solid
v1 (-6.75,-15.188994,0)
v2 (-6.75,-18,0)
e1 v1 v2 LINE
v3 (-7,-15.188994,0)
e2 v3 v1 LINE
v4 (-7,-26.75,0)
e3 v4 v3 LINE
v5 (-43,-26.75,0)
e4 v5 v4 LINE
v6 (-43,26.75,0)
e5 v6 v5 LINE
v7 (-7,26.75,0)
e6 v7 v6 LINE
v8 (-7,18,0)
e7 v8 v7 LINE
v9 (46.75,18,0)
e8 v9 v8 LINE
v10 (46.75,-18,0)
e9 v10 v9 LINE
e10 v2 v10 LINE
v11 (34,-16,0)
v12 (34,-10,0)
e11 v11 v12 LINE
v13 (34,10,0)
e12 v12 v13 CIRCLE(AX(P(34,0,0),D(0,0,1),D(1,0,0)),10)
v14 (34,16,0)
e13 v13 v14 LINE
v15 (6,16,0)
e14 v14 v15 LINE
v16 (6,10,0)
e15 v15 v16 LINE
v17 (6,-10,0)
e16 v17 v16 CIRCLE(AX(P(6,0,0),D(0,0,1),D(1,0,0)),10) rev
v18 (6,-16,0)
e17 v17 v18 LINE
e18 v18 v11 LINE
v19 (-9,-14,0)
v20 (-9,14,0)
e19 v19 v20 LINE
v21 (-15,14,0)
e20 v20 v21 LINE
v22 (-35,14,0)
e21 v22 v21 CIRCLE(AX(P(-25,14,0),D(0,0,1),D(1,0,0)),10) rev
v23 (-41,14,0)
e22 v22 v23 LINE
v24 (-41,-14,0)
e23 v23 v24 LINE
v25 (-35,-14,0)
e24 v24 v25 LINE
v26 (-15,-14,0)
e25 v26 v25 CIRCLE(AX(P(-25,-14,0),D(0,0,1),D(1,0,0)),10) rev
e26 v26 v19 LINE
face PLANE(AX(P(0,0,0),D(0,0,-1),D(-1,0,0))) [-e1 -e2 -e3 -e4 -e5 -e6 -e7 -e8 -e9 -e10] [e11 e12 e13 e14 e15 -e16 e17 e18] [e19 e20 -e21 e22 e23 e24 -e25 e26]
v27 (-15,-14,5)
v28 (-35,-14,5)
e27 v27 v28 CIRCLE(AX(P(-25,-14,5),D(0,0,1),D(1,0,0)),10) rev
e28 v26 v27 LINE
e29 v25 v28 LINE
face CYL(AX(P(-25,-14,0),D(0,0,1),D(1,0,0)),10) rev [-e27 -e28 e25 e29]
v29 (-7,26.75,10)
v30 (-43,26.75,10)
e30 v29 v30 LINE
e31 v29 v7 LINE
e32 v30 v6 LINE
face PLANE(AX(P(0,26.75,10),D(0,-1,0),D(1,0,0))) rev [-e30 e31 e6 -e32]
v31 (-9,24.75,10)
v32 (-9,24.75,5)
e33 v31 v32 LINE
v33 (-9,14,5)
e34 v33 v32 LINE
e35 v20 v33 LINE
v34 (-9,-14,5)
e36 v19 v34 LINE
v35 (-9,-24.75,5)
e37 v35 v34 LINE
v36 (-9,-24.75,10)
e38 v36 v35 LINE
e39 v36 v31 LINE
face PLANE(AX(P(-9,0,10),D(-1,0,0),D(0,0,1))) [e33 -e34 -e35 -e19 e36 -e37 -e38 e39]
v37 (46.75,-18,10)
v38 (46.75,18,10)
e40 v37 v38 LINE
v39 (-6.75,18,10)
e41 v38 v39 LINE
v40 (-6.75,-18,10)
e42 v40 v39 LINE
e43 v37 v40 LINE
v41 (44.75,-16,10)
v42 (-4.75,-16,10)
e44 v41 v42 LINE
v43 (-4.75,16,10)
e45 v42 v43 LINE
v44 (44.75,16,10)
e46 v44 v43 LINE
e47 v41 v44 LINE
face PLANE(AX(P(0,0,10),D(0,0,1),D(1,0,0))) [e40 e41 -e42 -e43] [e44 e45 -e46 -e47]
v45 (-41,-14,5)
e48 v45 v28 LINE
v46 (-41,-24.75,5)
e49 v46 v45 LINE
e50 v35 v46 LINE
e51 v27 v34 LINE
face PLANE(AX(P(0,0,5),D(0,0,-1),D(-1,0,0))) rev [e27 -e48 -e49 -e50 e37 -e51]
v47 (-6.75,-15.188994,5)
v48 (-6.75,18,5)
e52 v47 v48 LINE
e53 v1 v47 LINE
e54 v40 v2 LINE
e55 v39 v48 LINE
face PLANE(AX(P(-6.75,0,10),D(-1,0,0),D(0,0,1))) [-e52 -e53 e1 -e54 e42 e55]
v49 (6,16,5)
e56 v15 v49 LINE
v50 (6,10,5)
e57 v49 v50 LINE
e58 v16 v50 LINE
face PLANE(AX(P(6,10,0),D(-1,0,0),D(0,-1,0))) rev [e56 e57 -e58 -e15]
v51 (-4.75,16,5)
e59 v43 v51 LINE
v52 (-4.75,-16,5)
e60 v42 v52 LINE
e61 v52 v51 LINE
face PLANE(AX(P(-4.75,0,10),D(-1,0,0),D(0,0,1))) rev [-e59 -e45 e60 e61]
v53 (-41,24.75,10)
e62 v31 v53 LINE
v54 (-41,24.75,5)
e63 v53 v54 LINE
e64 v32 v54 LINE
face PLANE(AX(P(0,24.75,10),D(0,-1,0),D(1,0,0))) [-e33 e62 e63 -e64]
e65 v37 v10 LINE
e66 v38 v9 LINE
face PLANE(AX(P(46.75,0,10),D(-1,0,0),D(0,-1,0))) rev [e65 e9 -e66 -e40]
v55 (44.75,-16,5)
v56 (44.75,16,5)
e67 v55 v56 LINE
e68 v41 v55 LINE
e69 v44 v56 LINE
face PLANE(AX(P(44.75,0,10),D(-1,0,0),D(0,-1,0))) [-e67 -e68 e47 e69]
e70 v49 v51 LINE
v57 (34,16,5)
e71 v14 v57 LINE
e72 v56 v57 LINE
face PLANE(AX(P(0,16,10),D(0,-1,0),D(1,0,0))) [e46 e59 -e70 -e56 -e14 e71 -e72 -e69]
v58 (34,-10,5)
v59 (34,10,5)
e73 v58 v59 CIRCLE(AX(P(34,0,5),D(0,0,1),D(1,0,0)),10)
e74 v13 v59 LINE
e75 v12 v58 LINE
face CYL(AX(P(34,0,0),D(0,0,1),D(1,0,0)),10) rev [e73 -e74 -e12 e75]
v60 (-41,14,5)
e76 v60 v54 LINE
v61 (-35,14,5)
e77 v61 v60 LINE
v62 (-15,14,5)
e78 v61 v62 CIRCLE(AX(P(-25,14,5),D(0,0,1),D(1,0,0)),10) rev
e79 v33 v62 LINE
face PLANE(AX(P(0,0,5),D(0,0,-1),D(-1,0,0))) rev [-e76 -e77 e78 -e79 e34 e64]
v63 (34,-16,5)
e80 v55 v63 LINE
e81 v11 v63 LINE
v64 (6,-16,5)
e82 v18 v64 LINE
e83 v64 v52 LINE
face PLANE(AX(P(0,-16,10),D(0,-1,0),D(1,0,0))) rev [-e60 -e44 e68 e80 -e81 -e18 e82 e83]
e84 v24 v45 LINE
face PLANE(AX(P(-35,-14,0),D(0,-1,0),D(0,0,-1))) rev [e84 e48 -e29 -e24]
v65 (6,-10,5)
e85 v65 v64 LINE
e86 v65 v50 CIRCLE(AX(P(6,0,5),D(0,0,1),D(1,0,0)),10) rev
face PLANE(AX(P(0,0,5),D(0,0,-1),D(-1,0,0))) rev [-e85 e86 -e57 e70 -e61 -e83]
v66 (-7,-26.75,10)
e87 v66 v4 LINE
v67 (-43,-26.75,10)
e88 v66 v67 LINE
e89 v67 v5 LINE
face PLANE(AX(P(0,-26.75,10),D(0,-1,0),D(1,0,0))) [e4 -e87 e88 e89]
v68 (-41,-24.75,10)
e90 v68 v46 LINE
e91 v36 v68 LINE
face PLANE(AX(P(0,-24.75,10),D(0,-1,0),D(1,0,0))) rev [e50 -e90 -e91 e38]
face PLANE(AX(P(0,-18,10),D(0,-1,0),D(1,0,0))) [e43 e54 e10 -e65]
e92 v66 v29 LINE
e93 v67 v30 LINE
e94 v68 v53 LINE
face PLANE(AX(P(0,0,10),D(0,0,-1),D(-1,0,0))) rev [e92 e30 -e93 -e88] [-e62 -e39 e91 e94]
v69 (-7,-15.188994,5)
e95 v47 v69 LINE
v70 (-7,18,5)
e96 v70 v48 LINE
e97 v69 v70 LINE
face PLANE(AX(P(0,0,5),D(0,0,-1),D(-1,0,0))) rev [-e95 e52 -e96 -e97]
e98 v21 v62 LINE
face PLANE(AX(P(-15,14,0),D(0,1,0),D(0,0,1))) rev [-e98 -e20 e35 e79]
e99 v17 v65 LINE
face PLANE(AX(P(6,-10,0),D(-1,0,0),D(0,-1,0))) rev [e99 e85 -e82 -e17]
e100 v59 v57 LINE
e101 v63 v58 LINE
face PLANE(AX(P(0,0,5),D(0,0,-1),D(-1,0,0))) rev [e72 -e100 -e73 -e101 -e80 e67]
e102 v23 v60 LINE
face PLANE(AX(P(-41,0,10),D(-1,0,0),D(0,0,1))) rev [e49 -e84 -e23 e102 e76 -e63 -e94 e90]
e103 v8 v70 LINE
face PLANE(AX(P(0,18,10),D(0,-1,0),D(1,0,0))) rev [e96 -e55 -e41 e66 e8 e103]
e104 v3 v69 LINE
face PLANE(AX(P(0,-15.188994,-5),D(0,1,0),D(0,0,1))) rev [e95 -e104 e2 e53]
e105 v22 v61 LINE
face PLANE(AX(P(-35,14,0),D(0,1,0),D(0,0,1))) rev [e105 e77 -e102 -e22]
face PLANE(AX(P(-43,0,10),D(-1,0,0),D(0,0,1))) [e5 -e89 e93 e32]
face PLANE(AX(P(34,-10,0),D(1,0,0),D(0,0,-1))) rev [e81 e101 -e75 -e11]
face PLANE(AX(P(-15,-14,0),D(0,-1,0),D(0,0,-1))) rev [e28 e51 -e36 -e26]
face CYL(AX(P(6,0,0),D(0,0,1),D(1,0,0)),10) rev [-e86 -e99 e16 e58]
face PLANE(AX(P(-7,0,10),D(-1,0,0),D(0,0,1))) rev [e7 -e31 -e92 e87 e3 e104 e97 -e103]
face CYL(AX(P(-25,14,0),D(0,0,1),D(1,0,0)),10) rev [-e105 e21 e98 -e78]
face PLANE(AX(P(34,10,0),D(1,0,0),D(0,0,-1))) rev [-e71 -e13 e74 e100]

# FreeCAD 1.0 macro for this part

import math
import FreeCAD as App
import Part
import Sketcher
from FreeCAD import Vector
Q = App.Units.Quantity


def add_polygon(sketch, points):
    """Adds a closed chain of lines whose ends are joined by coincident constraints."""
    first, n = sketch.GeometryCount, len(points)
    for a, b in zip(points, points[1:] + points[:1]):
        sketch.addGeometry(Part.LineSegment(App.Vector(*a, 0), App.Vector(*b, 0)), False)
    for i in range(n):
        sketch.addConstraint(Sketcher.Constraint("Coincident", first + i, 2, first + (i + 1) % n, 1))

doc = App.newDocument("Part")
params = doc.addObject("Spreadsheet::Sheet", "Params")
for row, (alias, value) in enumerate([
    ("sketch1_width", "100 mm"),
    ("sketch1_height", "55 mm"),
    ("pad1_length", "5 mm"),
    ("sketch2_width", "36 mm"),
    ("sketch2_width2", "32 mm"),
    ("sketch2_width3", "53.5 mm"),
    ("sketch2_width4", "49.5 mm"),
    ("pad2_length", "5 mm"),
    ("sketch3_radius", "10 mm"),
    ("sketch3_height", "28 mm"),
    ("pocket1_length", "5 mm"),
    ("sketch4_radius", "10 mm"),
    ("sketch4_width", "28 mm"),
    ("pocket2_length", "5 mm"),
    ("sketch5_width", "6 mm"),
    ("sketch5_width2", "28 mm"),
    ("pocket3_length", "5 mm"),
    ("sketch6_width", "100 mm"),
    ("sketch6_width2", "36 mm"),
    ("sketch6_height", "55 mm"),
    ("sketch6_height2", "9.5 mm"),
    ("sketch6_height3", "53.5 mm"),
    ("pocket4_length", "10 mm"),
    ("sketch7_height", "5 mm"),
    ("sketch7_width", "3.25 mm"),
    ("pocket5_length", "10 mm"),
], start=1):
    params.set(f"A{row}", alias)
    params.set(f"B{row}", "=" + value)
    params.setAlias(f"B{row}", alias)

body = doc.addObject("PartDesign::Body", "Body")

sketch1 = body.newObject("Sketcher::SketchObject", "Sketch")
sketch1.AttachmentSupport = (doc.getObject("XY_Plane"), [""])
sketch1.MapMode = "FlatFace"
add_polygon(sketch1, [(-50, 28), (-50, -28), (50, -28), (50, 28)])
sketch1.addConstraint([
    Sketcher.Constraint("Vertical", 0),
    Sketcher.Constraint("Horizontal", 1),
    Sketcher.Constraint("Vertical", 2),
    Sketcher.Constraint("Horizontal", 3),
    Sketcher.Constraint("Symmetric", 0, 2, 2, 2, -1, 1),
    Sketcher.Constraint("DistanceX", 1, 1, 1, 2, Q("100 mm")),
    Sketcher.Constraint("DistanceY", 0, 2, 0, 1, Q("55 mm")),
])
sketch1.setExpression("Constraints[9]", "Params.sketch1_width")
sketch1.setExpression("Constraints[10]", "Params.sketch1_height")
pad1 = body.newObject("PartDesign::Pad", "Pad")
pad1.Profile = sketch1
pad1.setExpression("Length", "Params.pad1_length")

sketch2 = body.newObject("Sketcher::SketchObject", "Sketch001")
sketch2.AttachmentSupport = (doc.getObject("XY_Plane"), [""])
sketch2.MapMode = "FlatFace"
sketch2.AttachmentOffset = App.Placement(Vector(0, 0, 5), App.Rotation())
add_polygon(sketch2, [(-43, 27), (-43, -27), (-7, -27), (-7, 27)])
add_polygon(sketch2, [(-9, -25), (-41, -25), (-41, 25), (-9, 25)])
add_polygon(sketch2, [(-7, 18), (-7, -18), (47, -18), (47, 18)])
add_polygon(sketch2, [(45, -16), (-5, -16), (-5, 16), (45, 16)])
sketch2.addConstraint([
    Sketcher.Constraint("Vertical", 0),
    Sketcher.Constraint("Horizontal", 1),
    Sketcher.Constraint("Vertical", 2),
    Sketcher.Constraint("Horizontal", 3),
    Sketcher.Constraint("Horizontal", 4),
    Sketcher.Constraint("Vertical", 5),
    Sketcher.Constraint("Horizontal", 6),
    Sketcher.Constraint("Vertical", 7),
    Sketcher.Constraint("Vertical", 8),
    Sketcher.Constraint("Horizontal", 9),
    Sketcher.Constraint("Vertical", 10),
    Sketcher.Constraint("Horizontal", 11),
    Sketcher.Constraint("Horizontal", 12),
    Sketcher.Constraint("Vertical", 13),
    Sketcher.Constraint("Horizontal", 14),
    Sketcher.Constraint("Vertical", 15),
    Sketcher.Constraint("Equal", 11, 0),
    Sketcher.Constraint("Equal", 14, 5),
    Sketcher.Constraint("Equal", 3, 8),
    Sketcher.Constraint("Equal", 6, 13),
    Sketcher.Constraint("DistanceX", 1, 1, 1, 2, Q("36 mm")),
    Sketcher.Constraint("DistanceX", 4, 2, 4, 1, Q("32 mm")),
    Sketcher.Constraint("DistanceX", 9, 1, 9, 2, Q("53.5 mm")),
    Sketcher.Constraint("DistanceX", 12, 2, 12, 1, Q("49.5 mm")),
    Sketcher.Constraint("DistanceX", 0, 2, -1, 1, Q("43 mm")),
    Sketcher.Constraint("DistanceX", 4, 2, -1, 1, Q("41 mm")),
    Sketcher.Constraint("DistanceY", 8, 2, -1, 1, Q("18 mm")),
    Sketcher.Constraint("DistanceY", 12, 2, -1, 1, Q("16 mm")),
    Sketcher.Constraint("DistanceY", 0, 2, 4, 2, Q("2 mm")),
    Sketcher.Constraint("DistanceX", 8, 2, 12, 2, Q("2 mm")),
    Sketcher.Constraint("DistanceY", 0, 2, -1, 1, Q("26.75 mm")),
    Sketcher.Constraint("DistanceX", 8, 2, -1, 1, Q("6.75 mm")),
])
sketch2.setExpression("Constraints[36]", "Params.sketch2_width")
sketch2.setExpression("Constraints[37]", "Params.sketch2_width2")
sketch2.setExpression("Constraints[38]", "Params.sketch2_width3")
sketch2.setExpression("Constraints[39]", "Params.sketch2_width4")
pad2 = body.newObject("PartDesign::Pad", "Pad001")
pad2.Profile = sketch2
pad2.setExpression("Length", "Params.pad2_length")

sketch3 = body.newObject("Sketcher::SketchObject", "Sketch002")
sketch3.AttachmentSupport = (doc.getObject("XY_Plane"), [""])
sketch3.MapMode = "FlatFace"
sketch3.AttachmentOffset = App.Placement(Vector(0, 0, 5), App.Rotation())
sketch3.addGeometry([
    Part.LineSegment(Vector(-15, -14, 0), Vector(-15, 14, 0)),
    Part.ArcOfCircle(Part.Circle(Vector(-25, 14, 0), Vector(0, 0, 1), 10), math.radians(0), math.radians(90)),
    Part.ArcOfCircle(Part.Circle(Vector(-25, 14, 0), Vector(0, 0, 1), 10), math.radians(90), math.radians(180)),
    Part.LineSegment(Vector(-35, 14, 0), Vector(-35, -14, 0)),
    Part.ArcOfCircle(Part.Circle(Vector(-25, -14, 0), Vector(0, 0, 1), 10), math.radians(180), math.radians(270)),
    Part.ArcOfCircle(Part.Circle(Vector(-25, -14, 0), Vector(0, 0, 1), 10), math.radians(-90), math.radians(0)),
], False)
sketch3.addConstraint([
    Sketcher.Constraint("Tangent", 0, 2, 1, 1),
    Sketcher.Constraint("Tangent", 1, 2, 2, 1),
    Sketcher.Constraint("Tangent", 2, 2, 3, 1),
    Sketcher.Constraint("Tangent", 3, 2, 4, 1),
    Sketcher.Constraint("Tangent", 4, 2, 5, 1),
    Sketcher.Constraint("Tangent", 5, 2, 0, 1),
    Sketcher.Constraint("Vertical", 0),
    Sketcher.Constraint("Vertical", 3),
    Sketcher.Constraint("Equal", 1, 2),
    Sketcher.Constraint("Equal", 2, 4),
    Sketcher.Constraint("Symmetric", 1, 2, 4, 2, -1),
    Sketcher.Constraint("Vertical", 5, 3, 1, 2),
    Sketcher.Constraint("Radius", 1, Q("10 mm")),
    Sketcher.Constraint("DistanceY", 0, 1, 0, 2, Q("28 mm")),
    Sketcher.Constraint("DistanceX", 1, 3, -1, 1, Q("25 mm")),
])
sketch3.setExpression("Constraints[12]", "Params.sketch3_radius")
sketch3.setExpression("Constraints[13]", "Params.sketch3_height")
pocket1 = body.newObject("PartDesign::Pocket", "Pocket")
pocket1.Profile = sketch3
pocket1.setExpression("Length", "Params.pocket1_length")

sketch4 = body.newObject("Sketcher::SketchObject", "Sketch003")
sketch4.AttachmentSupport = (doc.getObject("XY_Plane"), [""])
sketch4.MapMode = "FlatFace"
sketch4.AttachmentOffset = App.Placement(Vector(0, 0, 5), App.Rotation())
sketch4.addGeometry([
    Part.LineSegment(Vector(34, 10, 0), Vector(6, 10, 0)),
    Part.ArcOfCircle(Part.Circle(Vector(6, 0, 0), Vector(0, 0, 1), 10), math.radians(90), math.radians(180)),
    Part.ArcOfCircle(Part.Circle(Vector(6, 0, 0), Vector(0, 0, 1), 10), math.radians(180), math.radians(270)),
    Part.LineSegment(Vector(6, -10, 0), Vector(34, -10, 0)),
    Part.ArcOfCircle(Part.Circle(Vector(34, 0, 0), Vector(0, 0, 1), 10), math.radians(-90), math.radians(0)),
    Part.ArcOfCircle(Part.Circle(Vector(34, 0, 0), Vector(0, 0, 1), 10), math.radians(0), math.radians(90)),
], False)
sketch4.addConstraint([
    Sketcher.Constraint("Tangent", 0, 2, 1, 1),
    Sketcher.Constraint("Tangent", 1, 2, 2, 1),
    Sketcher.Constraint("Tangent", 2, 2, 3, 1),
    Sketcher.Constraint("Tangent", 3, 2, 4, 1),
    Sketcher.Constraint("Tangent", 4, 2, 5, 1),
    Sketcher.Constraint("Tangent", 5, 2, 0, 1),
    Sketcher.Constraint("Horizontal", 0),
    Sketcher.Constraint("Horizontal", 3),
    Sketcher.Constraint("Equal", 1, 2),
    Sketcher.Constraint("Equal", 2, 4),
    Sketcher.Constraint("PointOnObject", 1, 3, -1),
    Sketcher.Constraint("PointOnObject", 1, 2, -1),
    Sketcher.Constraint("PointOnObject", 4, 2, -1),
    Sketcher.Constraint("Radius", 1, Q("10 mm")),
    Sketcher.Constraint("DistanceX", 0, 2, 0, 1, Q("28 mm")),
    Sketcher.Constraint("DistanceX", -1, 1, 1, 3, Q("6 mm")),
])
sketch4.setExpression("Constraints[13]", "Params.sketch4_radius")
sketch4.setExpression("Constraints[14]", "Params.sketch4_width")
pocket2 = body.newObject("PartDesign::Pocket", "Pocket001")
pocket2.Profile = sketch4
pocket2.setExpression("Length", "Params.pocket2_length")

sketch5 = body.newObject("Sketcher::SketchObject", "Sketch004")
sketch5.AttachmentSupport = (doc.getObject("XY_Plane"), [""])
sketch5.MapMode = "FlatFace"
sketch5.AttachmentOffset = App.Placement(Vector(0, 0, 5), App.Rotation())
add_polygon(sketch5, [(-15, 14), (-15, -14), (-9, -14), (-9, 14)])
add_polygon(sketch5, [(-41, 14), (-41, -14), (-35, -14), (-35, 14)])
add_polygon(sketch5, [(6, 16), (6, 10), (34, 10), (34, 16)])
add_polygon(sketch5, [(6, -10), (6, -16), (34, -16), (34, -10)])
sketch5.addConstraint([
    Sketcher.Constraint("Vertical", 0),
    Sketcher.Constraint("Horizontal", 1),
    Sketcher.Constraint("Vertical", 2),
    Sketcher.Constraint("Horizontal", 3),
    Sketcher.Constraint("Vertical", 4),
    Sketcher.Constraint("Horizontal", 5),
    Sketcher.Constraint("Vertical", 6),
    Sketcher.Constraint("Horizontal", 7),
    Sketcher.Constraint("Vertical", 8),
    Sketcher.Constraint("Horizontal", 9),
    Sketcher.Constraint("Vertical", 10),
    Sketcher.Constraint("Horizontal", 11),
    Sketcher.Constraint("Vertical", 12),
    Sketcher.Constraint("Horizontal", 13),
    Sketcher.Constraint("Vertical", 14),
    Sketcher.Constraint("Horizontal", 15),
    Sketcher.Constraint("Symmetric", 11, 2, 12, 2, -1),
    Sketcher.Constraint("Symmetric", 9, 2, 14, 2, -1),
    Sketcher.Constraint("Horizontal", 1, 2, 4, 2),
    Sketcher.Constraint("Horizontal", 3, 2, 6, 2),
    Sketcher.Constraint("Equal", 3, 5),
    Sketcher.Constraint("Equal", 15, 0),
    Sketcher.Constraint("Equal", 7, 8),
    Sketcher.Constraint("DistanceX", 1, 1, 1, 2, Q("6 mm")),
    Sketcher.Constraint("DistanceX", 9, 1, 9, 2, Q("28 mm")),
    Sketcher.Constraint("DistanceX", 0, 2, -1, 1, Q("15 mm")),
    Sketcher.Constraint("DistanceY", 0, 2, -1, 1, Q("14 mm")),
    Sketcher.Constraint("DistanceX", 4, 2, -1, 1, Q("41 mm")),
    Sketcher.Constraint("DistanceX", -1, 1, 8, 2, Q("6 mm")),
    Sketcher.Constraint("DistanceY", -1, 1, 8, 2, Q("10 mm")),
])
sketch5.setExpression("Constraints[39]", "Params.sketch5_width")
sketch5.setExpression("Constraints[40]", "Params.sketch5_width2")
pocket3 = body.newObject("PartDesign::Pocket", "Pocket002")
pocket3.Profile = sketch5
pocket3.setExpression("Length", "Params.pocket3_length")

sketch6 = body.newObject("Sketcher::SketchObject", "Sketch005")
sketch6.AttachmentSupport = (doc.getObject("XY_Plane"), [""])
sketch6.MapMode = "FlatFace"
sketch6.AttachmentOffset = App.Placement(Vector(0, 0, 5), App.Rotation())
add_polygon(sketch6, [(-50, 27.5), (-50, -27.5), (50, -27.5), (50, -18), (-6.75, -18), (-6.75, -15.19), (-7, -15.19), (-7, -26.75), (-43, -26.75), (-43, 26.75), (-7, 26.75), (-7, 18), (46.75, 18), (46.75, -15.19), (50, -15.19), (50, 27.5)])
sketch6.addConstraint([
    Sketcher.Constraint("Vertical", 0),
    Sketcher.Constraint("Horizontal", 1),
    Sketcher.Constraint("Vertical", 2),
    Sketcher.Constraint("Horizontal", 3),
    Sketcher.Constraint("Vertical", 4),
    Sketcher.Constraint("Horizontal", 5),
    Sketcher.Constraint("Vertical", 6),
    Sketcher.Constraint("Horizontal", 7),
    Sketcher.Constraint("Vertical", 8),
    Sketcher.Constraint("Horizontal", 9),
    Sketcher.Constraint("Vertical", 10),
    Sketcher.Constraint("Horizontal", 11),
    Sketcher.Constraint("Vertical", 12),
    Sketcher.Constraint("Horizontal", 13),
    Sketcher.Constraint("Vertical", 14),
    Sketcher.Constraint("Horizontal", 15),
    Sketcher.Constraint("Symmetric", 0, 2, 14, 2, -1, 1),
    Sketcher.Constraint("Symmetric", 6, 2, 9, 2, -1),
    Sketcher.Constraint("Horizontal", 5, 2, 12, 2),
    Sketcher.Constraint("Vertical", 2, 2, 13, 2),
    Sketcher.Constraint("DistanceX", 1, 1, 1, 2, Q("100 mm")),
    Sketcher.Constraint("DistanceX", 7, 2, 7, 1, Q("36 mm")),
    Sketcher.Constraint("DistanceY", 0, 2, 0, 1, Q("55 mm")),
    Sketcher.Constraint("DistanceY", 2, 1, 2, 2, Q("9.5 mm")),
    Sketcher.Constraint("DistanceY", 8, 1, 8, 2, Q("53.5 mm")),
    Sketcher.Constraint("DistanceX", 5, 2, -1, 1, Q("7 mm")),
    Sketcher.Constraint("DistanceY", -1, 1, 10, 2, Q("18 mm")),
    Sketcher.Constraint("DistanceX", 3, 2, 3, 1, Q("56.75 mm")),
    Sketcher.Constraint("DistanceX", 11, 1, 11, 2, Q("53.75 mm")),
    Sketcher.Constraint("DistanceY", 4, 1, 4, 2, Q("2.811006 mm")),
])
sketch6.setExpression("Constraints[36]", "Params.sketch6_width")
sketch6.setExpression("Constraints[37]", "Params.sketch6_width2")
sketch6.setExpression("Constraints[38]", "Params.sketch6_height")
sketch6.setExpression("Constraints[39]", "Params.sketch6_height2")
sketch6.setExpression("Constraints[40]", "Params.sketch6_height3")
pocket4 = body.newObject("PartDesign::Pocket", "Pocket003")
pocket4.Profile = sketch6
pocket4.setExpression("Length", "Params.pocket4_length")

sketch7 = body.newObject("Sketcher::SketchObject", "Sketch006")
sketch7.AttachmentSupport = (doc.getObject("XZ_Plane"), [""])
sketch7.MapMode = "FlatFace"
sketch7.AttachmentOffset = App.Placement(Vector(0, 0, 15.188994), App.Rotation())
add_polygon(sketch7, [(46.8, 0), (46.8, 5), (50, 5), (50, 0)])
sketch7.addConstraint([
    Sketcher.Constraint("Vertical", 0),
    Sketcher.Constraint("Horizontal", 1),
    Sketcher.Constraint("Vertical", 2),
    Sketcher.Constraint("Horizontal", 3),
    Sketcher.Constraint("PointOnObject", 2, 2, -1),
    Sketcher.Constraint("DistanceY", 0, 1, 0, 2, Q("5 mm")),
    Sketcher.Constraint("DistanceX", -1, 1, 1, 2, Q("50 mm")),
    Sketcher.Constraint("DistanceX", 1, 1, 1, 2, Q("3.25 mm")),
])
sketch7.setExpression("Constraints[9]", "Params.sketch7_height")
sketch7.setExpression("Constraints[11]", "Params.sketch7_width")
pocket5 = body.newObject("PartDesign::Pocket", "Pocket004")
pocket5.Profile = sketch7
pocket5.setExpression("Length", "Params.pocket5_length")
pocket5.Reversed = True

doc.recompute()
